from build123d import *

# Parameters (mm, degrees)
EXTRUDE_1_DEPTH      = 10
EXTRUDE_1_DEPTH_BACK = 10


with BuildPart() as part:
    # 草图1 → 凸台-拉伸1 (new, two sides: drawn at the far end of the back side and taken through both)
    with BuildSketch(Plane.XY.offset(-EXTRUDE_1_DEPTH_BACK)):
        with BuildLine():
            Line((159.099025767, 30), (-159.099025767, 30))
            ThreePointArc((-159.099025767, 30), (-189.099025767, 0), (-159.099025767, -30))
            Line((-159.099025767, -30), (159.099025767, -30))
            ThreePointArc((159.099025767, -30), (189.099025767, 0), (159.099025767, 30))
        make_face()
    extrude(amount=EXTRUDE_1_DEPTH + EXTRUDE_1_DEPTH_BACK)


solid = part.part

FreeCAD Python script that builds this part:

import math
import FreeCAD as App
import Part
import Sketcher

V = App.Vector
Q = App.Units.Quantity

doc = App.newDocument("Part")
params = doc.addObject("Spreadsheet::Sheet", "Params")
for row, (alias, value) in enumerate([
    ("sketch1_radius", "30 mm"),
    ("pad1_length", "10 mm"),
    ("pad1_length2", "10 mm"),
], start=1):
    params.set(f"A{row}", alias)
    params.set(f"B{row}", "=" + value)
    params.setAlias(f"B{row}", alias)

body = doc.addObject("PartDesign::Body", "Body")

# Sketch on XY plane
sketch1 = body.newObject("Sketcher::SketchObject", "Sketch")
sketch1.AttachmentSupport = (doc.getObject("XY_Plane"), [""])
sketch1.MapMode = "FlatFace"
sketch1.addGeometry([
    Part.LineSegment(V(159.099026, 30, 0), V(-159.099026, 30, 0)),
    Part.ArcOfCircle(Part.Circle(V(-159.099026, 0, 0), V(0, 0, 1), 30), math.radians(90), math.radians(270)),
    Part.LineSegment(V(-159.099026, -30, 0), V(159.099026, -30, 0)),
    Part.ArcOfCircle(Part.Circle(V(159.099026, 0, 0), V(0, 0, 1), 30), math.radians(-90), math.radians(90)),
], False)
sketch1.addConstraint([
    Sketcher.Constraint("Tangent", 0, 2, 1, 1),
    Sketcher.Constraint("Tangent", 1, 2, 2, 1),
    Sketcher.Constraint("Tangent", 2, 2, 3, 1),
    Sketcher.Constraint("Tangent", 3, 2, 0, 1),
    Sketcher.Constraint("Horizontal", 0),
    Sketcher.Constraint("Horizontal", 2),
    Sketcher.Constraint("Symmetric", 1, 3, 3, 3, -1, 1),
    Sketcher.Constraint("Radius", 1, Q("30 mm")),
    Sketcher.Constraint("DistanceX", 0, 2, 0, 1, Q("318.198052 mm")),
])
sketch1.setExpression("Constraints[7]", "Params.sketch1_radius")
pad1 = body.newObject("PartDesign::Pad", "Pad")
pad1.Profile = sketch1
pad1.Type = "TwoLengths"
pad1.setExpression("Length", "Params.pad1_length")
pad1.setExpression("Length2", "Params.pad1_length2")

doc.recompute()
